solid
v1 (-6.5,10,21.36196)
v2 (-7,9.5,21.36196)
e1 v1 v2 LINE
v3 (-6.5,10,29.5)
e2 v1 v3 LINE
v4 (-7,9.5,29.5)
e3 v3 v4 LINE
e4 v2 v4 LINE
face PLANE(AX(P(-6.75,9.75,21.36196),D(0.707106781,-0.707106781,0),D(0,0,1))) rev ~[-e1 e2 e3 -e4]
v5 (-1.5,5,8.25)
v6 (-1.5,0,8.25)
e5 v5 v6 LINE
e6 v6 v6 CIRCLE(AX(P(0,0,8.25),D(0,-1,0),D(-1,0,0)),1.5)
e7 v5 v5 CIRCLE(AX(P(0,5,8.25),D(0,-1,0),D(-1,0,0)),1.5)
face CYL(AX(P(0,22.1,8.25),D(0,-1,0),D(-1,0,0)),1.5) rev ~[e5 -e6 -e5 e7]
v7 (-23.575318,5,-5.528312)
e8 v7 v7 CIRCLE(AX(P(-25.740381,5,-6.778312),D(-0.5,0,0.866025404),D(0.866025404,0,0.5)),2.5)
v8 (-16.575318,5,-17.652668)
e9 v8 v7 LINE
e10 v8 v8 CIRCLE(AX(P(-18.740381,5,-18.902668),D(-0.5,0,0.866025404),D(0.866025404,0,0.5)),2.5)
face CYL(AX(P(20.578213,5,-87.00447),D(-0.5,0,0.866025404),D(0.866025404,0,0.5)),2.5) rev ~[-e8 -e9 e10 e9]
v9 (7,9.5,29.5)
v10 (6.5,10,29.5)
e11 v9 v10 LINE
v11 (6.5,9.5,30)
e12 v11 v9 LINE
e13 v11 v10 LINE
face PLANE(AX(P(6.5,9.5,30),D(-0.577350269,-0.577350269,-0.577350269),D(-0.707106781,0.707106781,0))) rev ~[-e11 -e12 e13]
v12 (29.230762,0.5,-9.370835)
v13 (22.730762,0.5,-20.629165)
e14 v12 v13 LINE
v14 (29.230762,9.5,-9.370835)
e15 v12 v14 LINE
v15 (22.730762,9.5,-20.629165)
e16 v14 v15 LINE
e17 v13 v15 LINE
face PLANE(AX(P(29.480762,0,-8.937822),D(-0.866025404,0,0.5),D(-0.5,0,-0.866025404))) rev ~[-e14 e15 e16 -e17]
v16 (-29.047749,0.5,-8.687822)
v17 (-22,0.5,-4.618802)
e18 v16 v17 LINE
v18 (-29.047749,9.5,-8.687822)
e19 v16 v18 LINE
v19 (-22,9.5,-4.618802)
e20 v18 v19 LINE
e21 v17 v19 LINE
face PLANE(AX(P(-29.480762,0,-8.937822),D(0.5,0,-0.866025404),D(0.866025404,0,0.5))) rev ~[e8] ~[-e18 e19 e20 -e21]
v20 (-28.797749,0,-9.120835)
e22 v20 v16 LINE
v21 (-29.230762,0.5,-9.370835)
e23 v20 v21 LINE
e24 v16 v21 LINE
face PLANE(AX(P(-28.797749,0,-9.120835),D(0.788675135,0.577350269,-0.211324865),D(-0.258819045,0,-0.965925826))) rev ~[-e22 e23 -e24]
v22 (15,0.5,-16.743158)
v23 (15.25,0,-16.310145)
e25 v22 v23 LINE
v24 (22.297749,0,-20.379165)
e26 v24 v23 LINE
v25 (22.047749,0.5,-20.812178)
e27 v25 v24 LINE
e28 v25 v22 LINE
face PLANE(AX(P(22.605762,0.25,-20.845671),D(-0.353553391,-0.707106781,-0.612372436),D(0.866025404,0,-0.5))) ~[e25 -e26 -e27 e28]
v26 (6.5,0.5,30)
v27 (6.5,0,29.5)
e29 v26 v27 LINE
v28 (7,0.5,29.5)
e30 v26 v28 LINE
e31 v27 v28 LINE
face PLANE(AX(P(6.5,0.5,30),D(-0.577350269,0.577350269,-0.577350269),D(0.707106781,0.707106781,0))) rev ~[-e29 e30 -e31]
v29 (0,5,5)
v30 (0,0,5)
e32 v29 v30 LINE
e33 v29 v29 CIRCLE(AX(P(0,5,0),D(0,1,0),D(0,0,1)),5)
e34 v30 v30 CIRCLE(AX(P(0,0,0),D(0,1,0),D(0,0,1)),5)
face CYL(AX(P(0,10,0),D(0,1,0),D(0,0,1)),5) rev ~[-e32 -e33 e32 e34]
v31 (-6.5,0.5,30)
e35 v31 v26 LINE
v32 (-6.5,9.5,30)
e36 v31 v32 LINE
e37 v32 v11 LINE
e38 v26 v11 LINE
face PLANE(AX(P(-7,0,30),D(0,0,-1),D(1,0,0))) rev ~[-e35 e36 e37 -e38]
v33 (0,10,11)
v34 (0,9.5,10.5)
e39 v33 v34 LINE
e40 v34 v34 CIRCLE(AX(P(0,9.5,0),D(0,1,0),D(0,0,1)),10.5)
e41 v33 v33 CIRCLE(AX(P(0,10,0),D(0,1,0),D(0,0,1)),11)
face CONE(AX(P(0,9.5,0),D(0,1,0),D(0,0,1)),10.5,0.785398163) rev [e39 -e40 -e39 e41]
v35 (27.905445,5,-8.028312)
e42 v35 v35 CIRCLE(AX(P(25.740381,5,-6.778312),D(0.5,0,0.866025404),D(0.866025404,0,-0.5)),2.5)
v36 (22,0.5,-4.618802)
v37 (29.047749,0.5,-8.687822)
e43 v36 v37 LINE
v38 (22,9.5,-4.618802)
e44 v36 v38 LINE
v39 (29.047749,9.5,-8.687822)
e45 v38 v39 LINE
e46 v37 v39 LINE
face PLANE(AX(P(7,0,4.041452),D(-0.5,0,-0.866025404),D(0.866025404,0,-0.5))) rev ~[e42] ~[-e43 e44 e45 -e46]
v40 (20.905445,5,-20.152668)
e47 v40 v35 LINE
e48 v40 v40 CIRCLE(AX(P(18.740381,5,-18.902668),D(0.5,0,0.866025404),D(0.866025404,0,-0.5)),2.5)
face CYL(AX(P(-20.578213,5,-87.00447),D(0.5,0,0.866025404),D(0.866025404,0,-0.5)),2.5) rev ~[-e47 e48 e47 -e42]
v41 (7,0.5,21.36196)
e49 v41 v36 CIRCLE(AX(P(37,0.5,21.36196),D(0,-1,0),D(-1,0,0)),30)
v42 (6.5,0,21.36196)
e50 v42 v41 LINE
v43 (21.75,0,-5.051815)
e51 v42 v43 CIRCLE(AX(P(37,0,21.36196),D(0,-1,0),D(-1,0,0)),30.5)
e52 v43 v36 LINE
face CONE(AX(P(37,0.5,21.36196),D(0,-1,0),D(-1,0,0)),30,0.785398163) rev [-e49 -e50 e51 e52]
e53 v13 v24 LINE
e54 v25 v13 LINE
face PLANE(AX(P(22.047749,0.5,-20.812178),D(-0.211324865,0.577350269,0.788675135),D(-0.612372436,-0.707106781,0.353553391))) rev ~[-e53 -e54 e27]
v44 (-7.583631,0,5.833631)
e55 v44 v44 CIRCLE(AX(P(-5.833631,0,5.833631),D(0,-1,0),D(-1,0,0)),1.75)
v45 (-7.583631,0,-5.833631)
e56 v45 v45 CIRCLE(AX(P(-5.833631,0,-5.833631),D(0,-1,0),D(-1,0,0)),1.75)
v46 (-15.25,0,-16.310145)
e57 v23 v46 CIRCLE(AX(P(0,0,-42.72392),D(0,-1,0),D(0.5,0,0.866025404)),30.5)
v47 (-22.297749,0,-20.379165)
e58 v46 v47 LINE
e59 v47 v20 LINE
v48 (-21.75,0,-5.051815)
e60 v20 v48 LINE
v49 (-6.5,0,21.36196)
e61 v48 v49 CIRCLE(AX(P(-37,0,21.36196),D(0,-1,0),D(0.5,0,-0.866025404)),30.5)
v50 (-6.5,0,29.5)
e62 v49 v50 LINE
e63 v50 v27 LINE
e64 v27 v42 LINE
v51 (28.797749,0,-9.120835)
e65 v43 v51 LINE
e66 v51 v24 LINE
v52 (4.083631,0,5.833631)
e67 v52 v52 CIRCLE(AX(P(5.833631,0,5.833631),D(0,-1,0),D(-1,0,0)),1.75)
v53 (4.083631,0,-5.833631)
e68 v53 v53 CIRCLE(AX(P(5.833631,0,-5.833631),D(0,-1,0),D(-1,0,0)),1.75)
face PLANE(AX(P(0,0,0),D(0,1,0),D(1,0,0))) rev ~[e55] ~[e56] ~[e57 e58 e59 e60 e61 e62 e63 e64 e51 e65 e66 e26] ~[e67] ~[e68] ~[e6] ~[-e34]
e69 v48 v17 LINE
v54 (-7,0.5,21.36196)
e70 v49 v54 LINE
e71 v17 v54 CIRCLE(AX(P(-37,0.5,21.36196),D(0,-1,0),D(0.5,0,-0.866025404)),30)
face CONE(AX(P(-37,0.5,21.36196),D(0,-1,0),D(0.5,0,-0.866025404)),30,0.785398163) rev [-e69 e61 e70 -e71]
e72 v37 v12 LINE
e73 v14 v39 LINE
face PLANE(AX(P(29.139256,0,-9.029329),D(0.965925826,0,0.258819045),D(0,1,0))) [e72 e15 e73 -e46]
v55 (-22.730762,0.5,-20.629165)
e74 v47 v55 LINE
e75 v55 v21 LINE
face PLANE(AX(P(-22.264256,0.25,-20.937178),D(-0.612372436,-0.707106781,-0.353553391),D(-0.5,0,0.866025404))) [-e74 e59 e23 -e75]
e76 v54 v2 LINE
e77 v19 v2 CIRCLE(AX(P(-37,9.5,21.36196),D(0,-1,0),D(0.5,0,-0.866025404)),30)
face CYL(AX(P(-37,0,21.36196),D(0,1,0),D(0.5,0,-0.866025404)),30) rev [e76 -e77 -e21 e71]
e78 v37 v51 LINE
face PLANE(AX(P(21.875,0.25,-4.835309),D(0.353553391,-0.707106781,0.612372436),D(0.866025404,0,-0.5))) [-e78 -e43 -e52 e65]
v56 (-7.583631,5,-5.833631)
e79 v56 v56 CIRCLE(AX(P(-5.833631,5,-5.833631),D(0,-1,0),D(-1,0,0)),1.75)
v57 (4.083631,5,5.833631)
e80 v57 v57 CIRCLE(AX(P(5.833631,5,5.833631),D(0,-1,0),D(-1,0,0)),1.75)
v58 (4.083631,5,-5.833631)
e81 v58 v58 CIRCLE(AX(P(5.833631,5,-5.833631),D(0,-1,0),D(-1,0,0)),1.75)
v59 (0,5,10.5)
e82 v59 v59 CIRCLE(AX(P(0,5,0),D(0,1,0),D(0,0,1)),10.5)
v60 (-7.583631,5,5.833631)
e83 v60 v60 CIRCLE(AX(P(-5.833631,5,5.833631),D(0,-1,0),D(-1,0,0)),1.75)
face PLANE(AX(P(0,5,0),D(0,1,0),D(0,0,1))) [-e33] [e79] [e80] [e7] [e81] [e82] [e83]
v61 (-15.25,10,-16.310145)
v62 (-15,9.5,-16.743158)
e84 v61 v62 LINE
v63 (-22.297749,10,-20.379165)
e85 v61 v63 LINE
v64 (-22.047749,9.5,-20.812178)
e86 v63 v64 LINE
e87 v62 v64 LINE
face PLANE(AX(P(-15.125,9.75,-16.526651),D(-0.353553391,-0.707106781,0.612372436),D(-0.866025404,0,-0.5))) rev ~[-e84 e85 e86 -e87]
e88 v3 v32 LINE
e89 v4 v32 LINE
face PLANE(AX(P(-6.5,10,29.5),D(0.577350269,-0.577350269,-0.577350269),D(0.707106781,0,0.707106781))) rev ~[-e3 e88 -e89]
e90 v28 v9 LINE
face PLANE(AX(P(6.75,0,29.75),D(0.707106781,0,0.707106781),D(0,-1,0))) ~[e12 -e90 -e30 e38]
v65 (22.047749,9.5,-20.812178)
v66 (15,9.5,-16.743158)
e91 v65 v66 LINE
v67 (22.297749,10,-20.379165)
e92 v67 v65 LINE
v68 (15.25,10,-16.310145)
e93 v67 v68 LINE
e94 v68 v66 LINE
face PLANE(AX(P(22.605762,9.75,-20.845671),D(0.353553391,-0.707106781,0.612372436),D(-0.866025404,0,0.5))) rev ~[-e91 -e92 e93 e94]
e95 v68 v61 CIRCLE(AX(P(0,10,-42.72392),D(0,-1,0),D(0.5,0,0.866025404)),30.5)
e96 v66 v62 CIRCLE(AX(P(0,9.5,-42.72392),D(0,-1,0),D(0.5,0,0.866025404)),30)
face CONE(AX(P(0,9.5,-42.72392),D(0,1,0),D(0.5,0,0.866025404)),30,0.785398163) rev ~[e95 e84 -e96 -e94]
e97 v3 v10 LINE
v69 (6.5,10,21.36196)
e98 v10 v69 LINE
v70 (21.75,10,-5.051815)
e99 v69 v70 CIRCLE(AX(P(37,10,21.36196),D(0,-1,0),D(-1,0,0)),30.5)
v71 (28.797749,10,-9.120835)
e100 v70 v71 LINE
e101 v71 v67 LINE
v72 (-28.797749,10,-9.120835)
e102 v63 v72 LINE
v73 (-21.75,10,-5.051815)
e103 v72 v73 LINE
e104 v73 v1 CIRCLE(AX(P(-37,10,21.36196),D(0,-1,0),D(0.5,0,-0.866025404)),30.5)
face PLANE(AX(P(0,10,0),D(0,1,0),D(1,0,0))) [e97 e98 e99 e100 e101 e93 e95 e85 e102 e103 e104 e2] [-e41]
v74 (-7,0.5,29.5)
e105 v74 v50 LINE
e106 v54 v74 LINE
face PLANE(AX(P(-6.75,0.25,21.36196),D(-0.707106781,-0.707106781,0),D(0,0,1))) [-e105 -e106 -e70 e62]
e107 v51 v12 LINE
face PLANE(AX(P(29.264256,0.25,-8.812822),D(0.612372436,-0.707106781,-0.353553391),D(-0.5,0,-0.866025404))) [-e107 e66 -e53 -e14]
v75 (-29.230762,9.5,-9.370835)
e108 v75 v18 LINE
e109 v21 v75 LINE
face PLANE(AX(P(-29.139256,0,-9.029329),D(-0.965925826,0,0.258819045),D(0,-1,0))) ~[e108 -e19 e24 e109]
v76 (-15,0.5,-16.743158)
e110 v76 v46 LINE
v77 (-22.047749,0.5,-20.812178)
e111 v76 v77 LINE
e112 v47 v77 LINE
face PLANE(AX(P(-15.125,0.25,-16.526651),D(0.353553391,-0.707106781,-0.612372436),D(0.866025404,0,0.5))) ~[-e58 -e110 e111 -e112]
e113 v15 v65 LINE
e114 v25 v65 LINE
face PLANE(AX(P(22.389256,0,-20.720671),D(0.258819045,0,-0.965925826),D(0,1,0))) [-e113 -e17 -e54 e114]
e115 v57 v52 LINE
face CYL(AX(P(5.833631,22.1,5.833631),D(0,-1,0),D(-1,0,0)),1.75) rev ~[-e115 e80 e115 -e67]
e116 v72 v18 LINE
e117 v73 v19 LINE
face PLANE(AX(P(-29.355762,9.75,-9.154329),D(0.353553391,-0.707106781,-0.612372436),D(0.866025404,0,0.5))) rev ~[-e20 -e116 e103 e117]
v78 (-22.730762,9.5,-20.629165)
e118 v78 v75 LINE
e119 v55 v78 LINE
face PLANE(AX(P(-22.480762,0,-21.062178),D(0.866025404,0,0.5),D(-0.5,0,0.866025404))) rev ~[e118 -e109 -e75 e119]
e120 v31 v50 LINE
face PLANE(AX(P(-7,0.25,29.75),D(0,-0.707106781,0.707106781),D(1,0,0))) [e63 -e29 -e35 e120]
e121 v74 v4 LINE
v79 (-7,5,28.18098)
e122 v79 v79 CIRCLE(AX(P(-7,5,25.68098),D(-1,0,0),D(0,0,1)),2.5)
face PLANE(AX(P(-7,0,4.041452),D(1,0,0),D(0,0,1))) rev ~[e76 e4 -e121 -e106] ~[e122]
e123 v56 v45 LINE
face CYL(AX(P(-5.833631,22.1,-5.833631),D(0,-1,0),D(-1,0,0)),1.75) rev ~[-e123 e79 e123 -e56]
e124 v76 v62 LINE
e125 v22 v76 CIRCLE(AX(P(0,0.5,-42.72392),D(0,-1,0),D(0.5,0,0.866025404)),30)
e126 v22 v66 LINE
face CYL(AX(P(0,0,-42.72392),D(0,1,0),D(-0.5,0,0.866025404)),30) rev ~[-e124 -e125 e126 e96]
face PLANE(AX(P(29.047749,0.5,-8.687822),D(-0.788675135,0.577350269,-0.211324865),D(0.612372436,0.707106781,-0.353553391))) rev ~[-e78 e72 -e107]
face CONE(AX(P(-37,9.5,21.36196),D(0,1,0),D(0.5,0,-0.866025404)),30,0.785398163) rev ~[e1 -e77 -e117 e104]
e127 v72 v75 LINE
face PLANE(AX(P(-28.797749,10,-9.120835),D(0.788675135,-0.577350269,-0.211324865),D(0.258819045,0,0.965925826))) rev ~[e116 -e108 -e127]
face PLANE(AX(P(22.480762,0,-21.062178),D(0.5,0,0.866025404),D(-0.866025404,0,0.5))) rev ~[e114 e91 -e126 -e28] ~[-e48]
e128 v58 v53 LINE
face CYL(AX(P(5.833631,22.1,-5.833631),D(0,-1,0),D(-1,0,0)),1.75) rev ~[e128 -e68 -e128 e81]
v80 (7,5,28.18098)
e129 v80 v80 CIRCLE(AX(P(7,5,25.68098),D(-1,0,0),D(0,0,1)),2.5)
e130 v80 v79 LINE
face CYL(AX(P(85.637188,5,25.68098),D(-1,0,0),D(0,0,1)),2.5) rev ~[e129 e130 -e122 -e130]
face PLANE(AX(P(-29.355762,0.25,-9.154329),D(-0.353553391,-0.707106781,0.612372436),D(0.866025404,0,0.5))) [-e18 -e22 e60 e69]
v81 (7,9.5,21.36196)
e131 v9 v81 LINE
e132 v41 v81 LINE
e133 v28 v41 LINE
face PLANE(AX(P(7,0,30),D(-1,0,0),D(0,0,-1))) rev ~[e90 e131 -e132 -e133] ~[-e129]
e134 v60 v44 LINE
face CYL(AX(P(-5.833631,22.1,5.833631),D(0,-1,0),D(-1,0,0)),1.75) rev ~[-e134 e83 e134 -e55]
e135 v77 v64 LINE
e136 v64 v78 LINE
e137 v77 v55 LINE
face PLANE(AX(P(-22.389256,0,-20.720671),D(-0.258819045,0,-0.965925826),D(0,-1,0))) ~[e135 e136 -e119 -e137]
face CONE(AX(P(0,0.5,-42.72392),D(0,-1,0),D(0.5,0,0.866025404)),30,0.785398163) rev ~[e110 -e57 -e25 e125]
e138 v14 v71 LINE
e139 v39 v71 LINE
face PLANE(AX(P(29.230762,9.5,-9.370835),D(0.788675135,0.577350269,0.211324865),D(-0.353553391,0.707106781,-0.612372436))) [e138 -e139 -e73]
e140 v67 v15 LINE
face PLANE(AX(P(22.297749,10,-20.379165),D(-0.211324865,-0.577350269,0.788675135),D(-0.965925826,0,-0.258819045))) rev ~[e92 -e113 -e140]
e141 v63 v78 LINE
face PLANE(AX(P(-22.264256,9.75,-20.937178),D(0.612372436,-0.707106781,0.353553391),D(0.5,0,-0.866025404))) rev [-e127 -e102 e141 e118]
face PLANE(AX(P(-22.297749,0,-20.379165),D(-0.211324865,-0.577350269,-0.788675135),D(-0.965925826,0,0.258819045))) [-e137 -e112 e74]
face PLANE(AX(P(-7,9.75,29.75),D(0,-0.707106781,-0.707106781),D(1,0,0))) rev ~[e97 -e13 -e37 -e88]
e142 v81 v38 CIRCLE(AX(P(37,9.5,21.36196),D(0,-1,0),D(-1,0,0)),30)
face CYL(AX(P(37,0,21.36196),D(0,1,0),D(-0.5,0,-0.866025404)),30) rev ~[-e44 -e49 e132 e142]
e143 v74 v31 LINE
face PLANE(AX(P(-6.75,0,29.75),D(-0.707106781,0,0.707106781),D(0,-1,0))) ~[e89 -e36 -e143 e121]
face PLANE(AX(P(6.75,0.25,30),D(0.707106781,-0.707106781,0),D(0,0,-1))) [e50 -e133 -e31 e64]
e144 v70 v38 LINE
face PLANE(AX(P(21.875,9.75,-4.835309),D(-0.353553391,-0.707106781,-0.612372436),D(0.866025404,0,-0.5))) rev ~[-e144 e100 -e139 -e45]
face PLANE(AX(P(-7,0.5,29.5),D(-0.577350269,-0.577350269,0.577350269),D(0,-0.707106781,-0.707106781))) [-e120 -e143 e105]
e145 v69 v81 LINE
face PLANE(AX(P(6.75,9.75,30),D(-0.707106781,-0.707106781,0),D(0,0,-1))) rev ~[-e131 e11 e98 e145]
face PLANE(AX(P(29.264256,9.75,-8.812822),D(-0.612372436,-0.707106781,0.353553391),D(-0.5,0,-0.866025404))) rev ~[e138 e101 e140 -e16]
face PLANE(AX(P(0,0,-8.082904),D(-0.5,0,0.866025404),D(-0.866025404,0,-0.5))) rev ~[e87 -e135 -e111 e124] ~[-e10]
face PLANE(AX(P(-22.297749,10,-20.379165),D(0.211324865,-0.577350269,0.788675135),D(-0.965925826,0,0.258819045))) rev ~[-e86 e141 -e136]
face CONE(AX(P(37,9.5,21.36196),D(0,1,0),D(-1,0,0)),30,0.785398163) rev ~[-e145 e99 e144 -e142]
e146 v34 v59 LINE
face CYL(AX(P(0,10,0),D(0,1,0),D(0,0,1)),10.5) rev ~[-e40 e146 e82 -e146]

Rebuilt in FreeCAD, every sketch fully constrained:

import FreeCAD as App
import Part
import Sketcher

V = App.Vector
Q = App.Units.Quantity


def edges_at(feature, points):
    """Names of the edges that pass closest to the given points."""
    edges = feature.Shape.Edges
    near = lambda p: min(range(len(edges)), key=lambda i: edges[i].distToShape(Part.Vertex(*p))[0])
    return sorted({f"Edge{near(p) + 1}" for p in points})


def add_polygon(sketch, points):
    """Adds a closed chain of lines whose ends are joined by coincident constraints."""
    first, n = sketch.GeometryCount, len(points)
    for a, b in zip(points, points[1:] + points[:1]):
        sketch.addGeometry(Part.LineSegment(App.Vector(*a, 0), App.Vector(*b, 0)), False)
    for i in range(n):
        sketch.addConstraint(Sketcher.Constraint("Coincident", first + i, 2, first + (i + 1) % n, 1))

doc = App.newDocument("Part")
body = doc.addObject("PartDesign::Body", "Body")

# Sketch on XZ plane
sketch1 = body.newObject("Sketcher::SketchObject", "Sketch")
sketch1.AttachmentSupport = (doc.getObject("XZ_Plane"), [""])
sketch1.MapMode = "FlatFace"
add_polygon(sketch1, [(-22, -21), (-29, -9), (-7, 4), (-7, 30), (7, 30), (7, 4), (29, -9), (22, -21), (0, -8)])  # lines 0-8
sketch1.addConstraint([
    Sketcher.Constraint("Vertical", 2),
    Sketcher.Constraint("Horizontal", 3),
    Sketcher.Constraint("Vertical", 4),
    Sketcher.Constraint("Symmetric", 1, 2, 4, 2, -2),
    Sketcher.Constraint("Symmetric", 0, 2, 5, 2, -2),
    Sketcher.Constraint("Symmetric", 6, 2, 8, 2, -2),
    Sketcher.Constraint("PointOnObject", 7, 2, -2),
    Sketcher.Constraint("Perpendicular", 0, 1),
    Sketcher.Constraint("Perpendicular", 6, 7),
    Sketcher.Constraint("Equal", 5, 7),
    Sketcher.Constraint("DistanceX", 3, 1, 3, 2, 14.0),
    Sketcher.Constraint("Angle", 0, Q("120 deg")),
    Sketcher.Constraint("DistanceY", -1, 1, 2, 2, 30.0),
    Sketcher.Constraint("DistanceY", 2, 1, 2, 2, 25.958548),
    Sketcher.Constraint("Distance", 1, 25.958548),
])
pad1 = body.newObject("PartDesign::Pad", "Pad")
pad1.Profile = sketch1
pad1.Length = 10
pad1.Reversed = True

# Sketch on XZ plane
sketch2 = body.newObject("Sketcher::SketchObject", "Sketch001")
sketch2.AttachmentSupport = (doc.getObject("XZ_Plane"), [""])
sketch2.MapMode = "FlatFace"
sketch2.AttachmentOffset = App.Placement(V(0, 0, -10), App.Rotation())
sketch2.addGeometry(Part.Circle(V(0, 0, 0), V(0, 0, 1), 5), False)
sketch2.addConstraint([
    Sketcher.Constraint("Coincident", 0, 3, -1, 1),
    Sketcher.Constraint("Diameter", 0, 10.0),
])
pocket1 = body.newObject("PartDesign::Pocket", "Pocket")
pocket1.Profile = sketch2
pocket1.Type = "ThroughAll"
pocket1.Reversed = True
doc.recompute()

fillet = body.newObject("PartDesign::Fillet", "Fillet")
fillet.Base = (pocket1, edges_at(pocket1, [(-7, 5, 4.041), (0, 5, -8.083), (7, 5, 4.041)]))
fillet.Radius = 30

# Sketch on an angled plane
sketch3 = body.newObject("Sketcher::SketchObject", "Sketch002")
sketch3.Placement = App.Placement(V(-3.5, 0, -6.062178), App.Rotation(V(-0.866025404, 0, 0.5), V(0, 1, 0), V(-0.5, 0, -0.866025404), "ZXY"))
sketch3.addGeometry(Part.Circle(V(-25.7, 5, 0), V(0, 0, 1), 2.5), False)
sketch3.addConstraint([
    Sketcher.Constraint("Diameter", 0, 5.0),
    Sketcher.Constraint("DistanceY", -1, 1, 0, 3, 5.0),
    Sketcher.Constraint("DistanceX", 0, 3, -1, 1, 25.68098),
])
doc.recompute()
hole = body.newObject("PartDesign::Hole", "Hole")
hole.Profile = sketch3
hole.ThreadType = "None"
hole.Diameter = 5
hole.DepthType = "ThroughAll"

# Sketch on an angled plane
sketch4 = body.newObject("Sketcher::SketchObject", "Sketch003")
sketch4.Placement = App.Placement(V(3.5, 0, -6.062178), App.Rotation(V(-0.866025404, 0, -0.5), V(0, 1, 0), V(0.5, 0, -0.866025404), "ZXY"))
sketch4.addGeometry(Part.Circle(V(25.7, 5, 0), V(0, 0, 1), 2.5), False)
sketch4.addConstraint([
    Sketcher.Constraint("Diameter", 0, 5.0),
    Sketcher.Constraint("DistanceY", -1, 1, 0, 3, 5.0),
    Sketcher.Constraint("DistanceX", -1, 1, 0, 3, 25.68098),
])
doc.recompute()
hole2 = body.newObject("PartDesign::Hole", "Hole001")
hole2.Profile = sketch4
hole2.ThreadType = "None"
hole2.Diameter = 5
hole2.DepthType = "ThroughAll"

# Sketch on YZ plane
sketch5 = body.newObject("Sketcher::SketchObject", "Sketch004")
sketch5.AttachmentSupport = (doc.getObject("YZ_Plane"), [""])
sketch5.MapMode = "FlatFace"
sketch5.AttachmentOffset = App.Placement(V(0, 0, 7), App.Rotation())
sketch5.addGeometry(Part.Circle(V(5, 25.7, 0), V(0, 0, 1), 2.5), False)
sketch5.addConstraint([
    Sketcher.Constraint("Diameter", 0, 5.0),
    Sketcher.Constraint("DistanceX", -1, 1, 0, 3, 5.0),
    Sketcher.Constraint("DistanceY", -1, 1, 0, 3, 25.68098),
])
doc.recompute()
hole3 = body.newObject("PartDesign::Hole", "Hole002")
hole3.Profile = sketch5
hole3.ThreadType = "None"
hole3.Diameter = 5
hole3.DepthType = "ThroughAll"

# Sketch on XZ plane
sketch6 = body.newObject("Sketcher::SketchObject", "Sketch005")
sketch6.AttachmentSupport = (doc.getObject("XZ_Plane"), [""])
sketch6.MapMode = "FlatFace"
sketch6.AttachmentOffset = App.Placement(V(0, 0, -10), App.Rotation())
sketch6.addGeometry([
    Part.Circle(V(5.8, -5.8, 0), V(0, 0, 1), 1.8),  # 0
    Part.Circle(V(5.8, 5.8, 0), V(0, 0, 1), 1.8),  # 1
    Part.Circle(V(-5.8, 5.8, 0), V(0, 0, 1), 1.8),  # 2
    Part.Circle(V(-5.8, -5.8, 0), V(0, 0, 1), 1.8),  # 3
    Part.Circle(V(0, 0, 0), V(0, 0, 1), 1.8),  # 4
], False)
sketch6.addConstraint([
    Sketcher.Constraint("Coincident", 4, 3, -1, 1),
    Sketcher.Constraint("Equal", 0, 1),
    Sketcher.Constraint("Equal", 1, 2),
    Sketcher.Constraint("Equal", 2, 3),
    Sketcher.Constraint("Equal", 3, 4),
    Sketcher.Constraint("Symmetric", 0, 3, 2, 3, -1, 1),
    Sketcher.Constraint("Symmetric", 1, 3, 3, 3, -1, 1),
    Sketcher.Constraint("Symmetric", 1, 3, 2, 3, -2),
    Sketcher.Constraint("Diameter", 0, 3.5),
    Sketcher.Constraint("DistanceX", -1, 1, 0, 3, 5.833631),
    Sketcher.Constraint("DistanceY", 0, 3, -1, 1, 5.833631),
])
doc.recompute()
hole4 = body.newObject("PartDesign::Hole", "Hole003")
hole4.Profile = sketch6
hole4.ThreadType = "None"
hole4.Diameter = 3.5
hole4.DepthType = "Dimension"
hole4.Depth = 12.1
hole4.DrillPoint = "Angled"
hole4.DrillPointAngle = 118
hole4.Reversed = True

# Sketch on XZ plane
sketch7 = body.newObject("Sketcher::SketchObject", "Sketch006")
sketch7.AttachmentSupport = (doc.getObject("XZ_Plane"), [""])
sketch7.MapMode = "FlatFace"
sketch7.AttachmentOffset = App.Placement(V(0, 0, -10), App.Rotation())
sketch7.addGeometry(Part.Circle(V(0, 8.2, 0), V(0, 0, 1), 1.5), False)
sketch7.addConstraint([
    Sketcher.Constraint("PointOnObject", 0, 3, -2),
    Sketcher.Constraint("Diameter", 0, 3.0),
    Sketcher.Constraint("DistanceY", -1, 1, 0, 3, 8.25),
])
doc.recompute()
hole5 = body.newObject("PartDesign::Hole", "Hole004")
hole5.Profile = sketch7
hole5.ThreadType = "None"
hole5.Diameter = 3
hole5.DepthType = "Dimension"
hole5.Depth = 12.1
hole5.DrillPoint = "Angled"
hole5.DrillPointAngle = 118
hole5.Reversed = True

# Sketch on XZ plane
sketch8 = body.newObject("Sketcher::SketchObject", "Sketch007")
sketch8.AttachmentSupport = (doc.getObject("XZ_Plane"), [""])
sketch8.MapMode = "FlatFace"
sketch8.AttachmentOffset = App.Placement(V(0, 0, -10), App.Rotation())
sketch8.addGeometry(Part.Circle(V(0, 0, 0), V(0, 0, 1), 10), False)
sketch8.addConstraint([
    Sketcher.Constraint("Coincident", 0, 3, -1, 1),
    Sketcher.Constraint("Diameter", 0, 21.0),
])
pocket2 = body.newObject("PartDesign::Pocket", "Pocket001")
pocket2.Profile = sketch8
pocket2.Length = 5
pocket2.Reversed = True
doc.recompute()

chamfer = body.newObject("PartDesign::Chamfer", "Chamfer")
chamfer.Base = (pocket2, edges_at(pocket2, [
    (7, 10, 25.681),
    (25.981, 0, -15),
    (7, 0, 25.681),
    (0, 10, -10.5),
    (0, 0, 30),
    (-29.481, 5, -8.938),
    (-22.481, 5, -21.062),
    (22.481, 5, -21.062),
    (29.481, 5, -8.938),
    (7, 5, 30),
    (-7, 5, 30),
    (25.981, 10, -15),
    (18.74, 10, -18.903),
    (-25.981, 10, -15),
    (-25.74, 10, -6.778),
    (25.74, 0, -6.778),
    (25.74, 10, -6.778),
    (-7, 0, 25.681),
    (-7, 10, 25.681),
    (-18.74, 0, -18.903),
    (-18.74, 10, -18.903),
    (11.019, 0, 6.362),
    (11.019, 10, 6.362),
    (-11.019, 0, 6.362),
    (-11.019, 10, 6.362),
    (0, 0, -12.724),
    (0, 10, -12.724),
    (0, 10, 30),
    (-25.74, 0, -6.778),
    (-25.981, 0, -15),
    (18.74, 0, -18.903),
]))
chamfer.Size = 0.5

doc.recompute()
